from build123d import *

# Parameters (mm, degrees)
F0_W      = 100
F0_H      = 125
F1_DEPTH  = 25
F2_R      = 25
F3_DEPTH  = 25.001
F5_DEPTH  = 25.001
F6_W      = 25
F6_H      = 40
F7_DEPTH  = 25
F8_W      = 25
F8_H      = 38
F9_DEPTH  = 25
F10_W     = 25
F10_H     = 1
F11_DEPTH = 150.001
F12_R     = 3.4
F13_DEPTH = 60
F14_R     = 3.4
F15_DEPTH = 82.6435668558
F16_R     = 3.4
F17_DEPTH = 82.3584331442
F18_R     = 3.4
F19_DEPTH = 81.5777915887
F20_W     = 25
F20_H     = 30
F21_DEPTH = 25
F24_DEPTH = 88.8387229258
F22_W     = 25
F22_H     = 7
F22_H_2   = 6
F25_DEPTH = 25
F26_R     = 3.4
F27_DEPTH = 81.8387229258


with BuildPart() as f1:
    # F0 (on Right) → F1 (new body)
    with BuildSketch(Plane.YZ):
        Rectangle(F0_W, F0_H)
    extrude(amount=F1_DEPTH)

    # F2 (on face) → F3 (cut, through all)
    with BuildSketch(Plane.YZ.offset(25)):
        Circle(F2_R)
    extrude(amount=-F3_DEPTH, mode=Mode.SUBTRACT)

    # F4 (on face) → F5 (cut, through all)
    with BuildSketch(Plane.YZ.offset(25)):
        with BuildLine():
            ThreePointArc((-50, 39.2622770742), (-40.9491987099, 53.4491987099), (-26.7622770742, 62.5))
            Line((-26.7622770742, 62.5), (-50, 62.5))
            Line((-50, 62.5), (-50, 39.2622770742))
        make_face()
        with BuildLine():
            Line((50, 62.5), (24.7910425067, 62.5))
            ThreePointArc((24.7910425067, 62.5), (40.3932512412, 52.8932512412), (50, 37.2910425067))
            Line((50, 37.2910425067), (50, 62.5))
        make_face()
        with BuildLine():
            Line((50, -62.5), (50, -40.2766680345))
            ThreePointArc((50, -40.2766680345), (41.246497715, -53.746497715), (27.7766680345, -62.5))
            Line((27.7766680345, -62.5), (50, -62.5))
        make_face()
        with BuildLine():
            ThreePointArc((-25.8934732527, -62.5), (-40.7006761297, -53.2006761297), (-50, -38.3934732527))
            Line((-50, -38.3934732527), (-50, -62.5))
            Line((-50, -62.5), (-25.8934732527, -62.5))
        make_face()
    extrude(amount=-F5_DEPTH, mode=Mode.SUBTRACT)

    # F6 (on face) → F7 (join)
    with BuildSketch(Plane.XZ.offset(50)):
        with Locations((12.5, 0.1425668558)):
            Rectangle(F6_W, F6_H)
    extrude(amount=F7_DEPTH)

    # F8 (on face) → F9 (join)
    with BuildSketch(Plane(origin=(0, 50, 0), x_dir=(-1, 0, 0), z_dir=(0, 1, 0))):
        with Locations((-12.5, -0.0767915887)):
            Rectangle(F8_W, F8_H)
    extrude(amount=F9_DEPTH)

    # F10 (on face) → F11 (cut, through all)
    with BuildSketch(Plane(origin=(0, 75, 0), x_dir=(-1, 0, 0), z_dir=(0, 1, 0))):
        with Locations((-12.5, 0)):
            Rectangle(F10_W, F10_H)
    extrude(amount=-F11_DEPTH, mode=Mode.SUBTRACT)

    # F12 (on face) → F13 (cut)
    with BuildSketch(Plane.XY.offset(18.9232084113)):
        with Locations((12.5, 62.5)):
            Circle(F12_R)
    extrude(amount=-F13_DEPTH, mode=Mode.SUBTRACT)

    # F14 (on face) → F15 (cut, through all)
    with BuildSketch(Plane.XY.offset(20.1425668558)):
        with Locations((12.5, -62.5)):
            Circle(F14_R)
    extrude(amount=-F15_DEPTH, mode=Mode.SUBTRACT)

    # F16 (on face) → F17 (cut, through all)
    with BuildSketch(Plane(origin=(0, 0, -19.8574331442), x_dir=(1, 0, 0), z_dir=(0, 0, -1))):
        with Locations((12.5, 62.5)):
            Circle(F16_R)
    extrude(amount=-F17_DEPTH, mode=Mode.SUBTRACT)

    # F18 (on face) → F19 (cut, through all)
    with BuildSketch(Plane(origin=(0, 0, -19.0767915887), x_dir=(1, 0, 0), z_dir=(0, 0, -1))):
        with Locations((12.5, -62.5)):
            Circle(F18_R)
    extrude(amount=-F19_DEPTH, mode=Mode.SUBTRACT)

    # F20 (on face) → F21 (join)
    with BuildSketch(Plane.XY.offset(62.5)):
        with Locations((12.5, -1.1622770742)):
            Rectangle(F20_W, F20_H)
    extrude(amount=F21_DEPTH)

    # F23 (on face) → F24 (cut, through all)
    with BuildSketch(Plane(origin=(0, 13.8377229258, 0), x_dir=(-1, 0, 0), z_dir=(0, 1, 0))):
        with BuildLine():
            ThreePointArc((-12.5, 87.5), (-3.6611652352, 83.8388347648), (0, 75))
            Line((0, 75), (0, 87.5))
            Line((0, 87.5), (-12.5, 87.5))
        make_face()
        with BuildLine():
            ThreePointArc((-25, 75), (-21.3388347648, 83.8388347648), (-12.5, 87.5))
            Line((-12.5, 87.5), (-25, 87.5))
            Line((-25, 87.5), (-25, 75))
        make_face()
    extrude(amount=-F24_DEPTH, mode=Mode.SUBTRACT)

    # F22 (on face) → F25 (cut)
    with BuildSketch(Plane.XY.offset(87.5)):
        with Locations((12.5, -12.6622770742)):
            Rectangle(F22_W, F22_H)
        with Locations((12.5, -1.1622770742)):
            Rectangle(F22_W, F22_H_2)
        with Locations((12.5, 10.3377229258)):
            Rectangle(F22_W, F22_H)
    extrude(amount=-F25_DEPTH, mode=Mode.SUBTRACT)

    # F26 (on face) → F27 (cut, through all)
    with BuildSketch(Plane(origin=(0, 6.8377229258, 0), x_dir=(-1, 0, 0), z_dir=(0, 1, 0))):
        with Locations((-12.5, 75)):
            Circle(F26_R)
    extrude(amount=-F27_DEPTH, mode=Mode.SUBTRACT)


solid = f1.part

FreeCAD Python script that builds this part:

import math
import FreeCAD as App
import Part
import Sketcher

doc = App.newDocument("Part")
body = doc.addObject("PartDesign::Body", "Body")
body.AllowCompound = True

sketch1 = body.newObject("Sketcher::SketchObject", "Sketch")
sketch1.AttachmentSupport = (doc.getObject("YZ_Plane"), [""])
sketch1.MapMode = "FlatFace"
sketch1.addGeometry([
    Part.LineSegment(App.Vector(-50, 62, 0), App.Vector(-50, -62, 0)),
    Part.LineSegment(App.Vector(-50, -62, 0), App.Vector(50, -62, 0)),
    Part.LineSegment(App.Vector(50, -62, 0), App.Vector(50, 62, 0)),
    Part.LineSegment(App.Vector(50, 62, 0), App.Vector(-50, 62, 0)),
], False)
sketch1.addConstraint([
    Sketcher.Constraint("Coincident", 0, 2, 1, 1),
    Sketcher.Constraint("Coincident", 1, 2, 2, 1),
    Sketcher.Constraint("Coincident", 2, 2, 3, 1),
    Sketcher.Constraint("Coincident", 3, 2, 0, 1),
    Sketcher.Constraint("Vertical", 0),
    Sketcher.Constraint("Horizontal", 1),
    Sketcher.Constraint("Vertical", 2),
    Sketcher.Constraint("Horizontal", 3),
    Sketcher.Constraint("Symmetric", 0, 2, 2, 2, -1, 1),
    Sketcher.Constraint("DistanceX", 1, 1, 1, 2, 100.0),
    Sketcher.Constraint("DistanceY", 0, 2, 0, 1, 125.0),
])
pad1 = body.newObject("PartDesign::Pad", "Pad")
pad1.Profile = sketch1
pad1.Length = 25

sketch2 = body.newObject("Sketcher::SketchObject", "Sketch001")
sketch2.AttachmentSupport = (doc.getObject("YZ_Plane"), [""])
sketch2.MapMode = "FlatFace"
sketch2.AttachmentOffset = App.Placement(App.Vector(0, 0, 25), App.Rotation())
sketch2.addGeometry(Part.Circle(App.Vector(0, 0, 0), App.Vector(0, 0, 1), 25), False)
sketch2.addConstraint([
    Sketcher.Constraint("Coincident", 0, 3, -1, 1),
    Sketcher.Constraint("Diameter", 0, 50.0),
])
pocket1 = body.newObject("PartDesign::Pocket", "Pocket")
pocket1.Profile = sketch2
pocket1.Type = "ThroughAll"

sketch3 = body.newObject("Sketcher::SketchObject", "Sketch002")
sketch3.AttachmentSupport = (doc.getObject("YZ_Plane"), [""])
sketch3.MapMode = "FlatFace"
sketch3.AttachmentOffset = App.Placement(App.Vector(0, 0, 25), App.Rotation())
sketch3.addGeometry([
    Part.ArcOfCircle(Part.Circle(App.Vector(-13, 26, 0), App.Vector(0, 0, 1), 39), math.radians(110), math.radians(160)),
    Part.LineSegment(App.Vector(-27, 62, 0), App.Vector(-50, 62, 0)),
    Part.LineSegment(App.Vector(-50, 62, 0), App.Vector(-50, 39, 0)),
    Part.LineSegment(App.Vector(50, 62, 0), App.Vector(25, 62, 0)),
    Part.ArcOfCircle(Part.Circle(App.Vector(12, 25, 0), App.Vector(0, 0, 1), 40), math.radians(18), math.radians(72)),
    Part.LineSegment(App.Vector(50, 37, 0), App.Vector(50, 62, 0)),
    Part.LineSegment(App.Vector(50, -62, 0), App.Vector(50, -40, 0)),
    Part.ArcOfCircle(Part.Circle(App.Vector(14, -26, 0), App.Vector(0, 0, 1), 39), math.radians(-69), math.radians(-21)),
    Part.LineSegment(App.Vector(28, -62, 0), App.Vector(50, -62, 0)),
    Part.ArcOfCircle(Part.Circle(App.Vector(-13, -25, 0), App.Vector(0, 0, 1), 39), math.radians(-161), math.radians(-109)),
    Part.LineSegment(App.Vector(-50, -38, 0), App.Vector(-50, -62, 0)),
    Part.LineSegment(App.Vector(-50, -62, 0), App.Vector(-26, -62, 0)),
], False)
sketch3.addConstraint([
    Sketcher.Constraint("Coincident", 0, 1, 1, 1),
    Sketcher.Constraint("Coincident", 1, 2, 2, 1),
    Sketcher.Constraint("Coincident", 2, 2, 0, 2),
    Sketcher.Constraint("Coincident", 3, 2, 4, 2),
    Sketcher.Constraint("Coincident", 4, 1, 5, 1),
    Sketcher.Constraint("Coincident", 5, 2, 3, 1),
    Sketcher.Constraint("Coincident", 6, 2, 7, 2),
    Sketcher.Constraint("Coincident", 7, 1, 8, 1),
    Sketcher.Constraint("Coincident", 8, 2, 6, 1),
    Sketcher.Constraint("Coincident", 9, 1, 10, 1),
    Sketcher.Constraint("Coincident", 10, 2, 11, 1),
    Sketcher.Constraint("Coincident", 11, 2, 9, 2),
    Sketcher.Constraint("Horizontal", 1),
    Sketcher.Constraint("Vertical", 2),
    Sketcher.Constraint("Horizontal", 3),
    Sketcher.Constraint("Vertical", 5),
    Sketcher.Constraint("Vertical", 6),
    Sketcher.Constraint("Horizontal", 8),
    Sketcher.Constraint("Vertical", 10),
    Sketcher.Constraint("Horizontal", 11),
    Sketcher.Constraint("Symmetric", 1, 2, 8, 2, -1, 1),
    Sketcher.Constraint("Symmetric", 5, 2, 10, 2, -1, 1),
    Sketcher.Constraint("Symmetric", 1, 2, 5, 2, -2),
    Sketcher.Constraint("Equal", 1, 2),
    Sketcher.Constraint("Equal", 3, 5),
    Sketcher.Constraint("Equal", 8, 6),
    Sketcher.Constraint("Equal", 11, 10),
    Sketcher.Constraint("DistanceX", 1, 2, -1, 1, 50.0),
    Sketcher.Constraint("DistanceY", -1, 1, 0, 1, 62.5),
    Sketcher.Constraint("Radius", 4, 39.594769),
    Sketcher.Constraint("Radius", 0, 38.987125),
    Sketcher.Constraint("Radius", 7, 38.690286),
    Sketcher.Constraint("Radius", 9, 39.249998),
    Sketcher.Constraint("DistanceX", 8, 1, 8, 2, 22.223332),
    Sketcher.Constraint("DistanceX", 0, 3, 9, 3, 0.434402),
    Sketcher.Constraint("DistanceX", 0, 1, 4, 3, 39.157798),
    Sketcher.Constraint("DistanceX", 1, 2, 1, 1, 23.237723),
])
pocket2 = body.newObject("PartDesign::Pocket", "Pocket001")
pocket2.Profile = sketch3
pocket2.Type = "ThroughAll"

sketch4 = body.newObject("Sketcher::SketchObject", "Sketch003")
sketch4.AttachmentSupport = (doc.getObject("XZ_Plane"), [""])
sketch4.MapMode = "FlatFace"
sketch4.AttachmentOffset = App.Placement(App.Vector(0, 0, 50), App.Rotation())
sketch4.addGeometry([
    Part.LineSegment(App.Vector(0, 20, 0), App.Vector(0, -20, 0)),
    Part.LineSegment(App.Vector(0, -20, 0), App.Vector(25, -20, 0)),
    Part.LineSegment(App.Vector(25, -20, 0), App.Vector(25, 20, 0)),
    Part.LineSegment(App.Vector(25, 20, 0), App.Vector(0, 20, 0)),
], False)
sketch4.addConstraint([
    Sketcher.Constraint("Coincident", 0, 2, 1, 1),
    Sketcher.Constraint("Coincident", 1, 2, 2, 1),
    Sketcher.Constraint("Coincident", 2, 2, 3, 1),
    Sketcher.Constraint("Coincident", 3, 2, 0, 1),
    Sketcher.Constraint("Vertical", 0),
    Sketcher.Constraint("Horizontal", 1),
    Sketcher.Constraint("Vertical", 2),
    Sketcher.Constraint("Horizontal", 3),
    Sketcher.Constraint("PointOnObject", 0, 2, -2),
    Sketcher.Constraint("DistanceX", 1, 1, 1, 2, 25.0),
    Sketcher.Constraint("DistanceY", 0, 2, 0, 1, 40.0),
    Sketcher.Constraint("DistanceY", 0, 2, -1, 1, 19.857433),
])
pad2 = body.newObject("PartDesign::Pad", "Pad001")
pad2.Profile = sketch4
pad2.Length = 25

sketch5 = body.newObject("Sketcher::SketchObject", "Sketch004")
sketch5.AttachmentSupport = (doc.getObject("XZ_Plane"), [""])
sketch5.MapMode = "FlatFace"
sketch5.AttachmentOffset = App.Placement(App.Vector(0, 0, -50), App.Rotation())
sketch5.addGeometry([
    Part.LineSegment(App.Vector(25, 19, 0), App.Vector(25, -19, 0)),
    Part.LineSegment(App.Vector(25, -19, 0), App.Vector(0, -19, 0)),
    Part.LineSegment(App.Vector(0, -19, 0), App.Vector(0, 19, 0)),
    Part.LineSegment(App.Vector(0, 19, 0), App.Vector(25, 19, 0)),
], False)
sketch5.addConstraint([
    Sketcher.Constraint("Coincident", 0, 2, 1, 1),
    Sketcher.Constraint("Coincident", 1, 2, 2, 1),
    Sketcher.Constraint("Coincident", 2, 2, 3, 1),
    Sketcher.Constraint("Coincident", 3, 2, 0, 1),
    Sketcher.Constraint("Vertical", 0),
    Sketcher.Constraint("Horizontal", 1),
    Sketcher.Constraint("Vertical", 2),
    Sketcher.Constraint("Horizontal", 3),
    Sketcher.Constraint("PointOnObject", 1, 2, -2),
    Sketcher.Constraint("DistanceX", 1, 2, 1, 1, 25.0),
    Sketcher.Constraint("DistanceY", 0, 2, 0, 1, 38.0),
    Sketcher.Constraint("DistanceY", 0, 2, -1, 1, 19.076792),
])
pad3 = body.newObject("PartDesign::Pad", "Pad002")
pad3.Profile = sketch5
pad3.Length = 25
pad3.Reversed = True

sketch6 = body.newObject("Sketcher::SketchObject", "Sketch005")
sketch6.AttachmentSupport = (doc.getObject("XZ_Plane"), [""])
sketch6.MapMode = "FlatFace"
sketch6.AttachmentOffset = App.Placement(App.Vector(0, 0, -75), App.Rotation())
sketch6.addGeometry([
    Part.LineSegment(App.Vector(25, 0.5, 0), App.Vector(25, -0.5, 0)),
    Part.LineSegment(App.Vector(25, -0.5, 0), App.Vector(0, -0.5, 0)),
    Part.LineSegment(App.Vector(0, -0.5, 0), App.Vector(0, 0.5, 0)),
    Part.LineSegment(App.Vector(0, 0.5, 0), App.Vector(25, 0.5, 0)),
], False)
sketch6.addConstraint([
    Sketcher.Constraint("Coincident", 0, 2, 1, 1),
    Sketcher.Constraint("Coincident", 1, 2, 2, 1),
    Sketcher.Constraint("Coincident", 2, 2, 3, 1),
    Sketcher.Constraint("Coincident", 3, 2, 0, 1),
    Sketcher.Constraint("Vertical", 0),
    Sketcher.Constraint("Horizontal", 1),
    Sketcher.Constraint("Vertical", 2),
    Sketcher.Constraint("Horizontal", 3),
    Sketcher.Constraint("Symmetric", 1, 2, 2, 2, -1, 1),
    Sketcher.Constraint("DistanceX", 1, 2, 1, 1, 25.0),
    Sketcher.Constraint("DistanceY", 0, 2, 0, 1, 1.0),
])
pocket3 = body.newObject("PartDesign::Pocket", "Pocket002")
pocket3.Profile = sketch6
pocket3.Type = "ThroughAll"
pocket3.Reversed = True

sketch7 = body.newObject("Sketcher::SketchObject", "Sketch006")
sketch7.AttachmentSupport = (doc.getObject("XY_Plane"), [""])
sketch7.MapMode = "FlatFace"
sketch7.AttachmentOffset = App.Placement(App.Vector(0, 0, 18.923208), App.Rotation())
sketch7.addGeometry(Part.Circle(App.Vector(12.5, 62.5, 0), App.Vector(0, 0, 1), 3.4), False)
sketch7.addConstraint([
    Sketcher.Constraint("Diameter", 0, 6.8),
    Sketcher.Constraint("DistanceX", -1, 1, 0, 3, 12.5),
    Sketcher.Constraint("DistanceY", -1, 1, 0, 3, 62.5),
])
pocket4 = body.newObject("PartDesign::Pocket", "Pocket003")
pocket4.Profile = sketch7
pocket4.Length = 60

sketch8 = body.newObject("Sketcher::SketchObject", "Sketch007")
sketch8.AttachmentSupport = (doc.getObject("XY_Plane"), [""])
sketch8.MapMode = "FlatFace"
sketch8.AttachmentOffset = App.Placement(App.Vector(0, 0, 20.142567), App.Rotation())
sketch8.addGeometry(Part.Circle(App.Vector(12.5, -62.5, 0), App.Vector(0, 0, 1), 3.4), False)
sketch8.addConstraint([
    Sketcher.Constraint("Diameter", 0, 6.8),
    Sketcher.Constraint("DistanceX", -1, 1, 0, 3, 12.5),
    Sketcher.Constraint("DistanceY", 0, 3, -1, 1, 62.5),
])
pocket5 = body.newObject("PartDesign::Pocket", "Pocket004")
pocket5.Profile = sketch8
pocket5.Type = "ThroughAll"

sketch9 = body.newObject("Sketcher::SketchObject", "Sketch008")
sketch9.AttachmentSupport = (doc.getObject("XY_Plane"), [""])
sketch9.MapMode = "FlatFace"
sketch9.AttachmentOffset = App.Placement(App.Vector(0, 0, -19.857433), App.Rotation())
sketch9.addGeometry(Part.Circle(App.Vector(12.5, -62.5, 0), App.Vector(0, 0, 1), 3.4), False)
sketch9.addConstraint([
    Sketcher.Constraint("Diameter", 0, 6.8),
    Sketcher.Constraint("DistanceX", -1, 1, 0, 3, 12.5),
    Sketcher.Constraint("DistanceY", 0, 3, -1, 1, 62.5),
])
pocket6 = body.newObject("PartDesign::Pocket", "Pocket005")
pocket6.Profile = sketch9
pocket6.Type = "ThroughAll"
pocket6.Reversed = True

sketch10 = body.newObject("Sketcher::SketchObject", "Sketch009")
sketch10.AttachmentSupport = (doc.getObject("XY_Plane"), [""])
sketch10.MapMode = "FlatFace"
sketch10.AttachmentOffset = App.Placement(App.Vector(0, 0, -19.076792), App.Rotation())
sketch10.addGeometry(Part.Circle(App.Vector(12.5, 62.5, 0), App.Vector(0, 0, 1), 3.4), False)
sketch10.addConstraint([
    Sketcher.Constraint("Diameter", 0, 6.8),
    Sketcher.Constraint("DistanceX", -1, 1, 0, 3, 12.5),
    Sketcher.Constraint("DistanceY", -1, 1, 0, 3, 62.5),
])
pocket7 = body.newObject("PartDesign::Pocket", "Pocket006")
pocket7.Profile = sketch10
pocket7.Type = "ThroughAll"
pocket7.Reversed = True

sketch11 = body.newObject("Sketcher::SketchObject", "Sketch010")
sketch11.AttachmentSupport = (doc.getObject("XY_Plane"), [""])
sketch11.MapMode = "FlatFace"
sketch11.AttachmentOffset = App.Placement(App.Vector(0, 0, 62.5), App.Rotation())
sketch11.addGeometry([
    Part.LineSegment(App.Vector(0, 14, 0), App.Vector(0, -16, 0)),
    Part.LineSegment(App.Vector(0, -16, 0), App.Vector(25, -16, 0)),
    Part.LineSegment(App.Vector(25, -16, 0), App.Vector(25, 14, 0)),
    Part.LineSegment(App.Vector(25, 14, 0), App.Vector(0, 14, 0)),
], False)
sketch11.addConstraint([
    Sketcher.Constraint("Coincident", 0, 2, 1, 1),
    Sketcher.Constraint("Coincident", 1, 2, 2, 1),
    Sketcher.Constraint("Coincident", 2, 2, 3, 1),
    Sketcher.Constraint("Coincident", 3, 2, 0, 1),
    Sketcher.Constraint("Vertical", 0),
    Sketcher.Constraint("Horizontal", 1),
    Sketcher.Constraint("Vertical", 2),
    Sketcher.Constraint("Horizontal", 3),
    Sketcher.Constraint("PointOnObject", 0, 2, -2),
    Sketcher.Constraint("DistanceX", 1, 1, 1, 2, 25.0),
    Sketcher.Constraint("DistanceY", 0, 2, 0, 1, 30.0),
    Sketcher.Constraint("DistanceY", 0, 2, -1, 1, 16.162277),
])
pad4 = body.newObject("PartDesign::Pad", "Pad003")
pad4.Profile = sketch11
pad4.Length = 25

sketch12 = body.newObject("Sketcher::SketchObject", "Sketch011")
sketch12.AttachmentSupport = (doc.getObject("XZ_Plane"), [""])
sketch12.MapMode = "FlatFace"
sketch12.AttachmentOffset = App.Placement(App.Vector(0, 0, -13.837723), App.Rotation())
sketch12.addGeometry([
    Part.ArcOfCircle(Part.Circle(App.Vector(12, 75, 0), App.Vector(0, 0, 1), 12), math.radians(90), math.radians(180)),
    Part.LineSegment(App.Vector(0, 75, 0), App.Vector(0, 88, 0)),
    Part.LineSegment(App.Vector(0, 88, 0), App.Vector(12, 88, 0)),
    Part.ArcOfCircle(Part.Circle(App.Vector(12, 75, 0), App.Vector(0, 0, 1), 12), math.radians(0), math.radians(90)),
    Part.LineSegment(App.Vector(12, 88, 0), App.Vector(25, 88, 0)),
    Part.LineSegment(App.Vector(25, 88, 0), App.Vector(25, 75, 0)),
], False)
sketch12.addConstraint([
    Sketcher.Constraint("Tangent", 0, 2, 1, 1),
    Sketcher.Constraint("Coincident", 1, 2, 2, 1),
    Sketcher.Constraint("Tangent", 2, 2, 0, 1),
    Sketcher.Constraint("Tangent", 3, 2, 4, 1),
    Sketcher.Constraint("Coincident", 4, 2, 5, 1),
    Sketcher.Constraint("Tangent", 5, 2, 3, 1),
    Sketcher.Constraint("Vertical", 1),
    Sketcher.Constraint("Horizontal", 2),
    Sketcher.Constraint("Horizontal", 4),
    Sketcher.Constraint("Vertical", 5),
    Sketcher.Constraint("Coincident", 3, 3, 0, 3),
    Sketcher.Constraint("Equal", 0, 3),
    Sketcher.Constraint("PointOnObject", 0, 2, -2),
    Sketcher.Constraint("Radius", 0, 12.5),
    Sketcher.Constraint("DistanceY", -1, 1, 0, 3, 75.0),
])
pocket8 = body.newObject("PartDesign::Pocket", "Pocket007")
pocket8.Profile = sketch12
pocket8.Type = "ThroughAll"
pocket8.Reversed = True

sketch13 = body.newObject("Sketcher::SketchObject", "Sketch012")
sketch13.AttachmentSupport = (doc.getObject("XY_Plane"), [""])
sketch13.MapMode = "FlatFace"
sketch13.AttachmentOffset = App.Placement(App.Vector(0, 0, 87.5), App.Rotation())
sketch13.addGeometry([
    Part.LineSegment(App.Vector(0, -9, 0), App.Vector(0, -16, 0)),
    Part.LineSegment(App.Vector(0, -16, 0), App.Vector(25, -16, 0)),
    Part.LineSegment(App.Vector(25, -16, 0), App.Vector(25, -9, 0)),
    Part.LineSegment(App.Vector(25, -9, 0), App.Vector(0, -9, 0)),
    Part.LineSegment(App.Vector(0, 2, 0), App.Vector(0, -4, 0)),
    Part.LineSegment(App.Vector(0, -4, 0), App.Vector(25, -4, 0)),
    Part.LineSegment(App.Vector(25, -4, 0), App.Vector(25, 2, 0)),
    Part.LineSegment(App.Vector(25, 2, 0), App.Vector(0, 2, 0)),
    Part.LineSegment(App.Vector(0, 14, 0), App.Vector(0, 7, 0)),
    Part.LineSegment(App.Vector(0, 7, 0), App.Vector(25, 7, 0)),
    Part.LineSegment(App.Vector(25, 7, 0), App.Vector(25, 14, 0)),
    Part.LineSegment(App.Vector(25, 14, 0), App.Vector(0, 14, 0)),
], False)
sketch13.addConstraint([
    Sketcher.Constraint("Coincident", 0, 2, 1, 1),
    Sketcher.Constraint("Coincident", 1, 2, 2, 1),
    Sketcher.Constraint("Coincident", 2, 2, 3, 1),
    Sketcher.Constraint("Coincident", 3, 2, 0, 1),
    Sketcher.Constraint("Coincident", 4, 2, 5, 1),
    Sketcher.Constraint("Coincident", 5, 2, 6, 1),
    Sketcher.Constraint("Coincident", 6, 2, 7, 1),
    Sketcher.Constraint("Coincident", 7, 2, 4, 1),
    Sketcher.Constraint("Coincident", 8, 2, 9, 1),
    Sketcher.Constraint("Coincident", 9, 2, 10, 1),
    Sketcher.Constraint("Coincident", 10, 2, 11, 1),
    Sketcher.Constraint("Coincident", 11, 2, 8, 1),
    Sketcher.Constraint("Vertical", 0),
    Sketcher.Constraint("Horizontal", 1),
    Sketcher.Constraint("Vertical", 2),
    Sketcher.Constraint("Horizontal", 3),
    Sketcher.Constraint("Vertical", 4),
    Sketcher.Constraint("Horizontal", 5),
    Sketcher.Constraint("Vertical", 6),
    Sketcher.Constraint("Horizontal", 7),
    Sketcher.Constraint("Vertical", 8),
    Sketcher.Constraint("Horizontal", 9),
    Sketcher.Constraint("Vertical", 10),
    Sketcher.Constraint("Horizontal", 11),
    Sketcher.Constraint("PointOnObject", 0, 2, -2),
    Sketcher.Constraint("PointOnObject", 4, 2, -2),
    Sketcher.Constraint("PointOnObject", 8, 2, -2),
    Sketcher.Constraint("Vertical", 2, 2, 5, 2),
    Sketcher.Constraint("Vertical", 6, 2, 9, 2),
    Sketcher.Constraint("Equal", 2, 8),
    Sketcher.Constraint("DistanceX", 1, 1, 1, 2, 25.0),
    Sketcher.Constraint("DistanceY", 0, 2, 0, 1, 7.0),
    Sketcher.Constraint("DistanceY", 4, 2, 4, 1, 6.0),
    Sketcher.Constraint("DistanceY", 3, 2, 4, 2, 5.0),
    Sketcher.Constraint("DistanceY", 7, 2, 8, 2, 5.0),
    Sketcher.Constraint("DistanceY", 0, 2, -1, 1, 16.162277),
])
pocket9 = body.newObject("PartDesign::Pocket", "Pocket008")
pocket9.Profile = sketch13
pocket9.Length = 25

sketch14 = body.newObject("Sketcher::SketchObject", "Sketch013")
sketch14.AttachmentSupport = (doc.getObject("XZ_Plane"), [""])
sketch14.MapMode = "FlatFace"
sketch14.AttachmentOffset = App.Placement(App.Vector(0, 0, -6.837723), App.Rotation())
sketch14.addGeometry(Part.Circle(App.Vector(12.5, 75, 0), App.Vector(0, 0, 1), 3.4), False)
sketch14.addConstraint([
    Sketcher.Constraint("Diameter", 0, 6.8),
    Sketcher.Constraint("DistanceY", -1, 1, 0, 3, 75.0),
    Sketcher.Constraint("DistanceX", -1, 1, 0, 3, 12.5),
])
pocket10 = body.newObject("PartDesign::Pocket", "Pocket009")
pocket10.Profile = sketch14
pocket10.Type = "ThroughAll"
pocket10.Reversed = True

doc.recompute()
